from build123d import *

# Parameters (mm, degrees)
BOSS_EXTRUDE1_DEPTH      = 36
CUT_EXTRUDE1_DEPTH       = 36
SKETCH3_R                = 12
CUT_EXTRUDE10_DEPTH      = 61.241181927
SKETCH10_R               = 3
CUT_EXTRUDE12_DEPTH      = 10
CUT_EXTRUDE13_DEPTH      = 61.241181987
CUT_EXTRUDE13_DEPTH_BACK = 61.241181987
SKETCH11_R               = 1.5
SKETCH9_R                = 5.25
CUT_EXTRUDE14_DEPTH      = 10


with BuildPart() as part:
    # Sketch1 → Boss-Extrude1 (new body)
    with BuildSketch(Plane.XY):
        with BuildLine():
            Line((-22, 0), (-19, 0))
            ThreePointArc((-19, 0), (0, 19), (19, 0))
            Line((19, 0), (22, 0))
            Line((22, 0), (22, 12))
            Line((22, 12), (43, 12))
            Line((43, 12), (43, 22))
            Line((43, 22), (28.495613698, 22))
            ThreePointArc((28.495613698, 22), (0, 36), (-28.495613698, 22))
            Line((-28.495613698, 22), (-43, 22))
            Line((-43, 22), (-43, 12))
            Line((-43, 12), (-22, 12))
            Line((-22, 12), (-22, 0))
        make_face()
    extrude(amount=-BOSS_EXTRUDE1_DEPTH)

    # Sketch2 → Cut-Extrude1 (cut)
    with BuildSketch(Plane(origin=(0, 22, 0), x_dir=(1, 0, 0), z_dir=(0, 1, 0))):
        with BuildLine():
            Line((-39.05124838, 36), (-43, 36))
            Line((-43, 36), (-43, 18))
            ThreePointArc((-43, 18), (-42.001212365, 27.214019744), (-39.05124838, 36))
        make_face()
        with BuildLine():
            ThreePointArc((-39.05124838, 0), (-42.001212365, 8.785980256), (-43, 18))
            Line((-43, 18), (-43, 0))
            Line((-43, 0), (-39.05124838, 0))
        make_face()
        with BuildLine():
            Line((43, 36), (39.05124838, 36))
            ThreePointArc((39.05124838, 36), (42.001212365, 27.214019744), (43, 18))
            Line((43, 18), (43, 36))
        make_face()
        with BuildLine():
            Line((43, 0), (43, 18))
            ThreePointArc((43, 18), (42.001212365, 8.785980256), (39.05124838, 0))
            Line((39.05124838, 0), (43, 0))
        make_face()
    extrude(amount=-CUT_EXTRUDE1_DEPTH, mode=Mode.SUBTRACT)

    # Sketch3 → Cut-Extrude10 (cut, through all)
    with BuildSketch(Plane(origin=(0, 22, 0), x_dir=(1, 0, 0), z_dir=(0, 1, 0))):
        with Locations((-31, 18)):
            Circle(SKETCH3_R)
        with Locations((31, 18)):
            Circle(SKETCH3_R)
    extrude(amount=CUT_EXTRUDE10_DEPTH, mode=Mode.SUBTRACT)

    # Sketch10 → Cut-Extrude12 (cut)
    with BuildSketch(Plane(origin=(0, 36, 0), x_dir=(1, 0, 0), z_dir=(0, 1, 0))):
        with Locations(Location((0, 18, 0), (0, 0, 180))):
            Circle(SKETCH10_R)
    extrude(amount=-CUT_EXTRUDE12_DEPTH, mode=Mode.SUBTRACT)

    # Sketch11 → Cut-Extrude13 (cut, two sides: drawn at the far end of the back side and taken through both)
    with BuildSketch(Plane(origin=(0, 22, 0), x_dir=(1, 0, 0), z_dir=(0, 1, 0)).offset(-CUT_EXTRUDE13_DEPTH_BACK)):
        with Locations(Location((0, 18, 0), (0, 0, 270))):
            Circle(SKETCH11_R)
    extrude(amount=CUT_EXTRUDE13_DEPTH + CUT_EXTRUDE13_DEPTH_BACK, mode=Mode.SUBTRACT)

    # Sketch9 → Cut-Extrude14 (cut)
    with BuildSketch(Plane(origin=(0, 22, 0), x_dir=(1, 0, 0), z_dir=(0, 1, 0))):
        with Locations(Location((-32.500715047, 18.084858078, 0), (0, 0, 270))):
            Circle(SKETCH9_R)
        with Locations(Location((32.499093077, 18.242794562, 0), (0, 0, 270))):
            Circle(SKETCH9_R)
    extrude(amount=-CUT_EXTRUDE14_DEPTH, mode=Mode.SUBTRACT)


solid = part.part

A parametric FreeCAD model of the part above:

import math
import FreeCAD as App
import Part
import Sketcher

V = App.Vector

doc = App.newDocument("Part")
params = doc.addObject("Spreadsheet::Sheet", "Params")
for row, (alias, value) in enumerate([
    ("sketch1_radius", "19 mm"),
    ("sketch1_radius2", "36 mm"),
    ("sketch1_width", "3 mm"),
    ("sketch1_width2", "21 mm"),
    ("sketch1_height", "12 mm"),
    ("pad1_length", "36 mm"),
    ("sketch2_radius", "43 mm"),
    ("sketch2_height", "18 mm"),
    ("pocket1_length", "36 mm"),
    ("sketch3_diameter", "24 mm"),
    ("sketch4_diameter", "6 mm"),
    ("pocket3_length", "10 mm"),
    ("sketch5_diameter", "3 mm"),
    ("sketch6_diameter", "10.5 mm"),
    ("pocket5_length", "10 mm"),
], start=1):
    params.set(f"A{row}", alias)
    params.set(f"B{row}", "=" + value)
    params.setAlias(f"B{row}", alias)

body = doc.addObject("PartDesign::Body", "Body")

# Sketch on XY plane
sketch1 = body.newObject("Sketcher::SketchObject", "Sketch")
sketch1.AttachmentSupport = (doc.getObject("XY_Plane"), [""])
sketch1.MapMode = "FlatFace"
sketch1.addGeometry(Part.LineSegment(V(-22, 0, 0), V(-19, 0, 0)), False)
sketch1.addGeometry(Part.ArcOfCircle(Part.Circle(V(0, 0, 0), V(0, 0, 1), 19), math.radians(0), math.radians(180)), False)
sketch1.addGeometry(Part.LineSegment(V(19, 0, 0), V(22, 0, 0)), False)
sketch1.addGeometry(Part.LineSegment(V(22, 0, 0), V(22, 12, 0)), False)
sketch1.addGeometry(Part.LineSegment(V(22, 12, 0), V(43, 12, 0)), False)
sketch1.addGeometry(Part.LineSegment(V(43, 12, 0), V(43, 22, 0)), False)
sketch1.addGeometry(Part.LineSegment(V(43, 22, 0), V(28.5, 22, 0)), False)
sketch1.addGeometry(Part.ArcOfCircle(Part.Circle(V(0, 0, 0), V(0, 0, 1), 36), math.radians(38), math.radians(142)), False)
sketch1.addGeometry(Part.LineSegment(V(-28.5, 22, 0), V(-43, 22, 0)), False)
sketch1.addGeometry(Part.LineSegment(V(-43, 22, 0), V(-43, 12, 0)), False)
sketch1.addGeometry(Part.LineSegment(V(-43, 12, 0), V(-22, 12, 0)), False)
sketch1.addGeometry(Part.LineSegment(V(-22, 12, 0), V(-22, 0, 0)), False)
sketch1.addConstraint(Sketcher.Constraint("Coincident", 0, 2, 1, 2))
sketch1.addConstraint(Sketcher.Constraint("Coincident", 1, 1, 2, 1))
sketch1.addConstraint(Sketcher.Constraint("Coincident", 2, 2, 3, 1))
sketch1.addConstraint(Sketcher.Constraint("Coincident", 3, 2, 4, 1))
sketch1.addConstraint(Sketcher.Constraint("Coincident", 4, 2, 5, 1))
sketch1.addConstraint(Sketcher.Constraint("Coincident", 5, 2, 6, 1))
sketch1.addConstraint(Sketcher.Constraint("Coincident", 6, 2, 7, 1))
sketch1.addConstraint(Sketcher.Constraint("Coincident", 7, 2, 8, 1))
sketch1.addConstraint(Sketcher.Constraint("Coincident", 8, 2, 9, 1))
sketch1.addConstraint(Sketcher.Constraint("Coincident", 9, 2, 10, 1))
sketch1.addConstraint(Sketcher.Constraint("Coincident", 10, 2, 11, 1))
sketch1.addConstraint(Sketcher.Constraint("Coincident", 11, 2, 0, 1))
sketch1.addConstraint(Sketcher.Constraint("Horizontal", 0))
sketch1.addConstraint(Sketcher.Constraint("Horizontal", 2))
sketch1.addConstraint(Sketcher.Constraint("Vertical", 3))
sketch1.addConstraint(Sketcher.Constraint("Horizontal", 4))
sketch1.addConstraint(Sketcher.Constraint("Vertical", 5))
sketch1.addConstraint(Sketcher.Constraint("Horizontal", 6))
sketch1.addConstraint(Sketcher.Constraint("Horizontal", 8))
sketch1.addConstraint(Sketcher.Constraint("Vertical", 9))
sketch1.addConstraint(Sketcher.Constraint("Horizontal", 10))
sketch1.addConstraint(Sketcher.Constraint("Vertical", 11))
sketch1.addConstraint(Sketcher.Constraint("Coincident", 1, 3, -1, 1))
sketch1.addConstraint(Sketcher.Constraint("Coincident", 7, 3, -1, 1))
sketch1.addConstraint(Sketcher.Constraint("Symmetric", 2, 2, 11, 2, -1, 1))
sketch1.addConstraint(Sketcher.Constraint("Symmetric", 5, 2, 8, 2, -2))
sketch1.addConstraint(Sketcher.Constraint("PointOnObject", 0, 2, -1))
sketch1.addConstraint(Sketcher.Constraint("Horizontal", 4, 2, 9, 2))
sketch1.addConstraint(Sketcher.Constraint("Radius", 1, 19.0))
sketch1.addConstraint(Sketcher.Constraint("Radius", 7, 36.0))
sketch1.addConstraint(Sketcher.Constraint("DistanceX", 0, 1, 0, 2, 3.0))
sketch1.addConstraint(Sketcher.Constraint("DistanceX", 4, 1, 4, 2, 21.0))
sketch1.addConstraint(Sketcher.Constraint("DistanceY", 3, 1, 3, 2, 12.0))
sketch1.addConstraint(Sketcher.Constraint("DistanceY", 5, 1, 5, 2, 10.0))
sketch1.setExpression("Constraints[28]", "Params.sketch1_radius")
sketch1.setExpression("Constraints[29]", "Params.sketch1_radius2")
sketch1.setExpression("Constraints[30]", "Params.sketch1_width")
sketch1.setExpression("Constraints[31]", "Params.sketch1_width2")
sketch1.setExpression("Constraints[32]", "Params.sketch1_height")
pad1 = body.newObject("PartDesign::Pad", "Pad")
pad1.Profile = sketch1
pad1.setExpression("Length", "Params.pad1_length")
pad1.Reversed = True

# Sketch on XZ plane
sketch2 = body.newObject("Sketcher::SketchObject", "Sketch001")
sketch2.AttachmentSupport = (doc.getObject("XZ_Plane"), [""])
sketch2.MapMode = "FlatFace"
sketch2.AttachmentOffset = App.Placement(V(0, 0, -22), App.Rotation())
sketch2.addGeometry(Part.LineSegment(V(-39.1, -36, 0), V(-43, -36, 0)), False)
sketch2.addGeometry(Part.LineSegment(V(-43, -36, 0), V(-43, -18, 0)), False)
sketch2.addGeometry(Part.ArcOfCircle(Part.Circle(V(0, -18, 0), V(0, 0, 1), 43), math.radians(-180), math.radians(-155)), False)
sketch2.addGeometry(Part.ArcOfCircle(Part.Circle(V(0, -18, 0), V(0, 0, 1), 43), math.radians(155), math.radians(180)), False)
sketch2.addGeometry(Part.LineSegment(V(-43, -18, 0), V(-43, 0, 0)), False)
sketch2.addGeometry(Part.LineSegment(V(-43, 0, 0), V(-39.1, 0, 0)), False)
sketch2.addGeometry(Part.LineSegment(V(43, -36, 0), V(39.1, -36, 0)), False)
sketch2.addGeometry(Part.ArcOfCircle(Part.Circle(V(0, -18, 0), V(0, 0, 1), 43), math.radians(-25), math.radians(0)), False)
sketch2.addGeometry(Part.LineSegment(V(43, -18, 0), V(43, -36, 0)), False)
sketch2.addGeometry(Part.LineSegment(V(43, 0, 0), V(43, -18, 0)), False)
sketch2.addGeometry(Part.ArcOfCircle(Part.Circle(V(0, -18, 0), V(0, 0, 1), 43), math.radians(0), math.radians(25)), False)
sketch2.addGeometry(Part.LineSegment(V(39.1, 0, 0), V(43, 0, 0)), False)
sketch2.addConstraint(Sketcher.Constraint("Coincident", 0, 2, 1, 1))
sketch2.addConstraint(Sketcher.Constraint("Tangent", 1, 2, 2, 1))
sketch2.addConstraint(Sketcher.Constraint("Coincident", 2, 2, 0, 1))
sketch2.addConstraint(Sketcher.Constraint("Tangent", 3, 2, 4, 1))
sketch2.addConstraint(Sketcher.Constraint("Coincident", 4, 2, 5, 1))
sketch2.addConstraint(Sketcher.Constraint("Coincident", 5, 2, 3, 1))
sketch2.addConstraint(Sketcher.Constraint("Coincident", 6, 2, 7, 1))
sketch2.addConstraint(Sketcher.Constraint("Tangent", 7, 2, 8, 1))
sketch2.addConstraint(Sketcher.Constraint("Coincident", 8, 2, 6, 1))
sketch2.addConstraint(Sketcher.Constraint("Tangent", 9, 2, 10, 1))
sketch2.addConstraint(Sketcher.Constraint("Coincident", 10, 2, 11, 1))
sketch2.addConstraint(Sketcher.Constraint("Coincident", 11, 2, 9, 1))
sketch2.addConstraint(Sketcher.Constraint("Horizontal", 0))
sketch2.addConstraint(Sketcher.Constraint("Vertical", 1))
sketch2.addConstraint(Sketcher.Constraint("Vertical", 4))
sketch2.addConstraint(Sketcher.Constraint("Horizontal", 5))
sketch2.addConstraint(Sketcher.Constraint("Horizontal", 6))
sketch2.addConstraint(Sketcher.Constraint("Vertical", 8))
sketch2.addConstraint(Sketcher.Constraint("Vertical", 9))
sketch2.addConstraint(Sketcher.Constraint("Horizontal", 11))
sketch2.addConstraint(Sketcher.Constraint("Coincident", 3, 3, 2, 3))
sketch2.addConstraint(Sketcher.Constraint("Coincident", 7, 3, 2, 3))
sketch2.addConstraint(Sketcher.Constraint("Coincident", 10, 3, 2, 3))
sketch2.addConstraint(Sketcher.Constraint("Equal", 2, 3))
sketch2.addConstraint(Sketcher.Constraint("Equal", 3, 7))
sketch2.addConstraint(Sketcher.Constraint("Equal", 7, 10))
sketch2.addConstraint(Sketcher.Constraint("Symmetric", 5, 2, 10, 2, -1, 1))
sketch2.addConstraint(Sketcher.Constraint("Symmetric", 2, 2, 6, 2, -2))
sketch2.addConstraint(Sketcher.Constraint("Vertical", 2, 2, 5, 2))
sketch2.addConstraint(Sketcher.Constraint("Radius", 2, 43.0))
sketch2.addConstraint(Sketcher.Constraint("DistanceY", 1, 1, 1, 2, 18.0))
sketch2.setExpression("Constraints[29]", "Params.sketch2_radius")
sketch2.setExpression("Constraints[30]", "Params.sketch2_height")
pocket1 = body.newObject("PartDesign::Pocket", "Pocket")
pocket1.Profile = sketch2
pocket1.setExpression("Length", "Params.pocket1_length")
pocket1.Reversed = True

# Sketch on XZ plane
sketch3 = body.newObject("Sketcher::SketchObject", "Sketch002")
sketch3.AttachmentSupport = (doc.getObject("XZ_Plane"), [""])
sketch3.MapMode = "FlatFace"
sketch3.AttachmentOffset = App.Placement(V(0, 0, -22), App.Rotation())
sketch3.addGeometry(Part.Circle(V(-31, -18, 0), V(0, 0, 1), 12), False)
sketch3.addGeometry(Part.Circle(V(31, -18, 0), V(0, 0, 1), 12), False)
sketch3.addConstraint(Sketcher.Constraint("Equal", 0, 1))
sketch3.addConstraint(Sketcher.Constraint("Symmetric", 0, 3, 1, 3, -2))
sketch3.addConstraint(Sketcher.Constraint("Diameter", 0, 24.0))
sketch3.addConstraint(Sketcher.Constraint("DistanceX", 0, 3, -1, 1, 31.0))
sketch3.addConstraint(Sketcher.Constraint("DistanceY", 0, 3, -1, 1, 18.0))
sketch3.setExpression("Constraints[2]", "Params.sketch3_diameter")
pocket2 = body.newObject("PartDesign::Pocket", "Pocket001")
pocket2.Profile = sketch3
pocket2.Type = "ThroughAll"

# Sketch on XZ plane
sketch4 = body.newObject("Sketcher::SketchObject", "Sketch003")
sketch4.AttachmentSupport = (doc.getObject("XZ_Plane"), [""])
sketch4.MapMode = "FlatFace"
sketch4.AttachmentOffset = App.Placement(V(0, 0, -36), App.Rotation())
sketch4.addGeometry(Part.Circle(V(0, -18, 0), V(0, 0, 1), 3), False)
sketch4.addConstraint(Sketcher.Constraint("PointOnObject", 0, 3, -2))
sketch4.addConstraint(Sketcher.Constraint("Diameter", 0, 6.0))
sketch4.addConstraint(Sketcher.Constraint("DistanceY", 0, 3, -1, 1, 18.0))
sketch4.setExpression("Constraints[1]", "Params.sketch4_diameter")
pocket3 = body.newObject("PartDesign::Pocket", "Pocket002")
pocket3.Profile = sketch4
pocket3.setExpression("Length", "Params.pocket3_length")
pocket3.Reversed = True

# Sketch on XZ plane
sketch5 = body.newObject("Sketcher::SketchObject", "Sketch004")
sketch5.AttachmentSupport = (doc.getObject("XZ_Plane"), [""])
sketch5.MapMode = "FlatFace"
sketch5.AttachmentOffset = App.Placement(V(0, 0, -22), App.Rotation())
sketch5.addGeometry(Part.Circle(V(0, -18, 0), V(0, 0, 1), 1.5), False)
sketch5.addConstraint(Sketcher.Constraint("PointOnObject", 0, 3, -2))
sketch5.addConstraint(Sketcher.Constraint("Diameter", 0, 3.0))
sketch5.addConstraint(Sketcher.Constraint("DistanceY", 0, 3, -1, 1, 18.0))
sketch5.setExpression("Constraints[1]", "Params.sketch5_diameter")
pocket4 = body.newObject("PartDesign::Pocket", "Pocket003")
pocket4.Profile = sketch5
pocket4.Type = "ThroughAll"
pocket4.Midplane = True

# Sketch on XZ plane
sketch6 = body.newObject("Sketcher::SketchObject", "Sketch005")
sketch6.AttachmentSupport = (doc.getObject("XZ_Plane"), [""])
sketch6.MapMode = "FlatFace"
sketch6.AttachmentOffset = App.Placement(V(0, 0, -22), App.Rotation())
sketch6.addGeometry(Part.Circle(V(-33, -18, 0), V(0, 0, 1), 5), False)
sketch6.addGeometry(Part.Circle(V(32, -18, 0), V(0, 0, 1), 5), False)
sketch6.addConstraint(Sketcher.Constraint("Equal", 0, 1))
sketch6.addConstraint(Sketcher.Constraint("Diameter", 0, 10.5))
sketch6.addConstraint(Sketcher.Constraint("DistanceY", 0, 3, -1, 1, 18.084858))
sketch6.addConstraint(Sketcher.Constraint("DistanceX", 0, 3, 1, 3, 64.999808))
sketch6.addConstraint(Sketcher.Constraint("DistanceX", 0, 3, -1, 1, 32.500715))
sketch6.addConstraint(Sketcher.Constraint("DistanceY", 1, 3, -1, 1, 18.242795))
sketch6.setExpression("Constraints[1]", "Params.sketch6_diameter")
pocket5 = body.newObject("PartDesign::Pocket", "Pocket004")
pocket5.Profile = sketch6
pocket5.setExpression("Length", "Params.pocket5_length")
pocket5.Reversed = True

doc.recompute()
